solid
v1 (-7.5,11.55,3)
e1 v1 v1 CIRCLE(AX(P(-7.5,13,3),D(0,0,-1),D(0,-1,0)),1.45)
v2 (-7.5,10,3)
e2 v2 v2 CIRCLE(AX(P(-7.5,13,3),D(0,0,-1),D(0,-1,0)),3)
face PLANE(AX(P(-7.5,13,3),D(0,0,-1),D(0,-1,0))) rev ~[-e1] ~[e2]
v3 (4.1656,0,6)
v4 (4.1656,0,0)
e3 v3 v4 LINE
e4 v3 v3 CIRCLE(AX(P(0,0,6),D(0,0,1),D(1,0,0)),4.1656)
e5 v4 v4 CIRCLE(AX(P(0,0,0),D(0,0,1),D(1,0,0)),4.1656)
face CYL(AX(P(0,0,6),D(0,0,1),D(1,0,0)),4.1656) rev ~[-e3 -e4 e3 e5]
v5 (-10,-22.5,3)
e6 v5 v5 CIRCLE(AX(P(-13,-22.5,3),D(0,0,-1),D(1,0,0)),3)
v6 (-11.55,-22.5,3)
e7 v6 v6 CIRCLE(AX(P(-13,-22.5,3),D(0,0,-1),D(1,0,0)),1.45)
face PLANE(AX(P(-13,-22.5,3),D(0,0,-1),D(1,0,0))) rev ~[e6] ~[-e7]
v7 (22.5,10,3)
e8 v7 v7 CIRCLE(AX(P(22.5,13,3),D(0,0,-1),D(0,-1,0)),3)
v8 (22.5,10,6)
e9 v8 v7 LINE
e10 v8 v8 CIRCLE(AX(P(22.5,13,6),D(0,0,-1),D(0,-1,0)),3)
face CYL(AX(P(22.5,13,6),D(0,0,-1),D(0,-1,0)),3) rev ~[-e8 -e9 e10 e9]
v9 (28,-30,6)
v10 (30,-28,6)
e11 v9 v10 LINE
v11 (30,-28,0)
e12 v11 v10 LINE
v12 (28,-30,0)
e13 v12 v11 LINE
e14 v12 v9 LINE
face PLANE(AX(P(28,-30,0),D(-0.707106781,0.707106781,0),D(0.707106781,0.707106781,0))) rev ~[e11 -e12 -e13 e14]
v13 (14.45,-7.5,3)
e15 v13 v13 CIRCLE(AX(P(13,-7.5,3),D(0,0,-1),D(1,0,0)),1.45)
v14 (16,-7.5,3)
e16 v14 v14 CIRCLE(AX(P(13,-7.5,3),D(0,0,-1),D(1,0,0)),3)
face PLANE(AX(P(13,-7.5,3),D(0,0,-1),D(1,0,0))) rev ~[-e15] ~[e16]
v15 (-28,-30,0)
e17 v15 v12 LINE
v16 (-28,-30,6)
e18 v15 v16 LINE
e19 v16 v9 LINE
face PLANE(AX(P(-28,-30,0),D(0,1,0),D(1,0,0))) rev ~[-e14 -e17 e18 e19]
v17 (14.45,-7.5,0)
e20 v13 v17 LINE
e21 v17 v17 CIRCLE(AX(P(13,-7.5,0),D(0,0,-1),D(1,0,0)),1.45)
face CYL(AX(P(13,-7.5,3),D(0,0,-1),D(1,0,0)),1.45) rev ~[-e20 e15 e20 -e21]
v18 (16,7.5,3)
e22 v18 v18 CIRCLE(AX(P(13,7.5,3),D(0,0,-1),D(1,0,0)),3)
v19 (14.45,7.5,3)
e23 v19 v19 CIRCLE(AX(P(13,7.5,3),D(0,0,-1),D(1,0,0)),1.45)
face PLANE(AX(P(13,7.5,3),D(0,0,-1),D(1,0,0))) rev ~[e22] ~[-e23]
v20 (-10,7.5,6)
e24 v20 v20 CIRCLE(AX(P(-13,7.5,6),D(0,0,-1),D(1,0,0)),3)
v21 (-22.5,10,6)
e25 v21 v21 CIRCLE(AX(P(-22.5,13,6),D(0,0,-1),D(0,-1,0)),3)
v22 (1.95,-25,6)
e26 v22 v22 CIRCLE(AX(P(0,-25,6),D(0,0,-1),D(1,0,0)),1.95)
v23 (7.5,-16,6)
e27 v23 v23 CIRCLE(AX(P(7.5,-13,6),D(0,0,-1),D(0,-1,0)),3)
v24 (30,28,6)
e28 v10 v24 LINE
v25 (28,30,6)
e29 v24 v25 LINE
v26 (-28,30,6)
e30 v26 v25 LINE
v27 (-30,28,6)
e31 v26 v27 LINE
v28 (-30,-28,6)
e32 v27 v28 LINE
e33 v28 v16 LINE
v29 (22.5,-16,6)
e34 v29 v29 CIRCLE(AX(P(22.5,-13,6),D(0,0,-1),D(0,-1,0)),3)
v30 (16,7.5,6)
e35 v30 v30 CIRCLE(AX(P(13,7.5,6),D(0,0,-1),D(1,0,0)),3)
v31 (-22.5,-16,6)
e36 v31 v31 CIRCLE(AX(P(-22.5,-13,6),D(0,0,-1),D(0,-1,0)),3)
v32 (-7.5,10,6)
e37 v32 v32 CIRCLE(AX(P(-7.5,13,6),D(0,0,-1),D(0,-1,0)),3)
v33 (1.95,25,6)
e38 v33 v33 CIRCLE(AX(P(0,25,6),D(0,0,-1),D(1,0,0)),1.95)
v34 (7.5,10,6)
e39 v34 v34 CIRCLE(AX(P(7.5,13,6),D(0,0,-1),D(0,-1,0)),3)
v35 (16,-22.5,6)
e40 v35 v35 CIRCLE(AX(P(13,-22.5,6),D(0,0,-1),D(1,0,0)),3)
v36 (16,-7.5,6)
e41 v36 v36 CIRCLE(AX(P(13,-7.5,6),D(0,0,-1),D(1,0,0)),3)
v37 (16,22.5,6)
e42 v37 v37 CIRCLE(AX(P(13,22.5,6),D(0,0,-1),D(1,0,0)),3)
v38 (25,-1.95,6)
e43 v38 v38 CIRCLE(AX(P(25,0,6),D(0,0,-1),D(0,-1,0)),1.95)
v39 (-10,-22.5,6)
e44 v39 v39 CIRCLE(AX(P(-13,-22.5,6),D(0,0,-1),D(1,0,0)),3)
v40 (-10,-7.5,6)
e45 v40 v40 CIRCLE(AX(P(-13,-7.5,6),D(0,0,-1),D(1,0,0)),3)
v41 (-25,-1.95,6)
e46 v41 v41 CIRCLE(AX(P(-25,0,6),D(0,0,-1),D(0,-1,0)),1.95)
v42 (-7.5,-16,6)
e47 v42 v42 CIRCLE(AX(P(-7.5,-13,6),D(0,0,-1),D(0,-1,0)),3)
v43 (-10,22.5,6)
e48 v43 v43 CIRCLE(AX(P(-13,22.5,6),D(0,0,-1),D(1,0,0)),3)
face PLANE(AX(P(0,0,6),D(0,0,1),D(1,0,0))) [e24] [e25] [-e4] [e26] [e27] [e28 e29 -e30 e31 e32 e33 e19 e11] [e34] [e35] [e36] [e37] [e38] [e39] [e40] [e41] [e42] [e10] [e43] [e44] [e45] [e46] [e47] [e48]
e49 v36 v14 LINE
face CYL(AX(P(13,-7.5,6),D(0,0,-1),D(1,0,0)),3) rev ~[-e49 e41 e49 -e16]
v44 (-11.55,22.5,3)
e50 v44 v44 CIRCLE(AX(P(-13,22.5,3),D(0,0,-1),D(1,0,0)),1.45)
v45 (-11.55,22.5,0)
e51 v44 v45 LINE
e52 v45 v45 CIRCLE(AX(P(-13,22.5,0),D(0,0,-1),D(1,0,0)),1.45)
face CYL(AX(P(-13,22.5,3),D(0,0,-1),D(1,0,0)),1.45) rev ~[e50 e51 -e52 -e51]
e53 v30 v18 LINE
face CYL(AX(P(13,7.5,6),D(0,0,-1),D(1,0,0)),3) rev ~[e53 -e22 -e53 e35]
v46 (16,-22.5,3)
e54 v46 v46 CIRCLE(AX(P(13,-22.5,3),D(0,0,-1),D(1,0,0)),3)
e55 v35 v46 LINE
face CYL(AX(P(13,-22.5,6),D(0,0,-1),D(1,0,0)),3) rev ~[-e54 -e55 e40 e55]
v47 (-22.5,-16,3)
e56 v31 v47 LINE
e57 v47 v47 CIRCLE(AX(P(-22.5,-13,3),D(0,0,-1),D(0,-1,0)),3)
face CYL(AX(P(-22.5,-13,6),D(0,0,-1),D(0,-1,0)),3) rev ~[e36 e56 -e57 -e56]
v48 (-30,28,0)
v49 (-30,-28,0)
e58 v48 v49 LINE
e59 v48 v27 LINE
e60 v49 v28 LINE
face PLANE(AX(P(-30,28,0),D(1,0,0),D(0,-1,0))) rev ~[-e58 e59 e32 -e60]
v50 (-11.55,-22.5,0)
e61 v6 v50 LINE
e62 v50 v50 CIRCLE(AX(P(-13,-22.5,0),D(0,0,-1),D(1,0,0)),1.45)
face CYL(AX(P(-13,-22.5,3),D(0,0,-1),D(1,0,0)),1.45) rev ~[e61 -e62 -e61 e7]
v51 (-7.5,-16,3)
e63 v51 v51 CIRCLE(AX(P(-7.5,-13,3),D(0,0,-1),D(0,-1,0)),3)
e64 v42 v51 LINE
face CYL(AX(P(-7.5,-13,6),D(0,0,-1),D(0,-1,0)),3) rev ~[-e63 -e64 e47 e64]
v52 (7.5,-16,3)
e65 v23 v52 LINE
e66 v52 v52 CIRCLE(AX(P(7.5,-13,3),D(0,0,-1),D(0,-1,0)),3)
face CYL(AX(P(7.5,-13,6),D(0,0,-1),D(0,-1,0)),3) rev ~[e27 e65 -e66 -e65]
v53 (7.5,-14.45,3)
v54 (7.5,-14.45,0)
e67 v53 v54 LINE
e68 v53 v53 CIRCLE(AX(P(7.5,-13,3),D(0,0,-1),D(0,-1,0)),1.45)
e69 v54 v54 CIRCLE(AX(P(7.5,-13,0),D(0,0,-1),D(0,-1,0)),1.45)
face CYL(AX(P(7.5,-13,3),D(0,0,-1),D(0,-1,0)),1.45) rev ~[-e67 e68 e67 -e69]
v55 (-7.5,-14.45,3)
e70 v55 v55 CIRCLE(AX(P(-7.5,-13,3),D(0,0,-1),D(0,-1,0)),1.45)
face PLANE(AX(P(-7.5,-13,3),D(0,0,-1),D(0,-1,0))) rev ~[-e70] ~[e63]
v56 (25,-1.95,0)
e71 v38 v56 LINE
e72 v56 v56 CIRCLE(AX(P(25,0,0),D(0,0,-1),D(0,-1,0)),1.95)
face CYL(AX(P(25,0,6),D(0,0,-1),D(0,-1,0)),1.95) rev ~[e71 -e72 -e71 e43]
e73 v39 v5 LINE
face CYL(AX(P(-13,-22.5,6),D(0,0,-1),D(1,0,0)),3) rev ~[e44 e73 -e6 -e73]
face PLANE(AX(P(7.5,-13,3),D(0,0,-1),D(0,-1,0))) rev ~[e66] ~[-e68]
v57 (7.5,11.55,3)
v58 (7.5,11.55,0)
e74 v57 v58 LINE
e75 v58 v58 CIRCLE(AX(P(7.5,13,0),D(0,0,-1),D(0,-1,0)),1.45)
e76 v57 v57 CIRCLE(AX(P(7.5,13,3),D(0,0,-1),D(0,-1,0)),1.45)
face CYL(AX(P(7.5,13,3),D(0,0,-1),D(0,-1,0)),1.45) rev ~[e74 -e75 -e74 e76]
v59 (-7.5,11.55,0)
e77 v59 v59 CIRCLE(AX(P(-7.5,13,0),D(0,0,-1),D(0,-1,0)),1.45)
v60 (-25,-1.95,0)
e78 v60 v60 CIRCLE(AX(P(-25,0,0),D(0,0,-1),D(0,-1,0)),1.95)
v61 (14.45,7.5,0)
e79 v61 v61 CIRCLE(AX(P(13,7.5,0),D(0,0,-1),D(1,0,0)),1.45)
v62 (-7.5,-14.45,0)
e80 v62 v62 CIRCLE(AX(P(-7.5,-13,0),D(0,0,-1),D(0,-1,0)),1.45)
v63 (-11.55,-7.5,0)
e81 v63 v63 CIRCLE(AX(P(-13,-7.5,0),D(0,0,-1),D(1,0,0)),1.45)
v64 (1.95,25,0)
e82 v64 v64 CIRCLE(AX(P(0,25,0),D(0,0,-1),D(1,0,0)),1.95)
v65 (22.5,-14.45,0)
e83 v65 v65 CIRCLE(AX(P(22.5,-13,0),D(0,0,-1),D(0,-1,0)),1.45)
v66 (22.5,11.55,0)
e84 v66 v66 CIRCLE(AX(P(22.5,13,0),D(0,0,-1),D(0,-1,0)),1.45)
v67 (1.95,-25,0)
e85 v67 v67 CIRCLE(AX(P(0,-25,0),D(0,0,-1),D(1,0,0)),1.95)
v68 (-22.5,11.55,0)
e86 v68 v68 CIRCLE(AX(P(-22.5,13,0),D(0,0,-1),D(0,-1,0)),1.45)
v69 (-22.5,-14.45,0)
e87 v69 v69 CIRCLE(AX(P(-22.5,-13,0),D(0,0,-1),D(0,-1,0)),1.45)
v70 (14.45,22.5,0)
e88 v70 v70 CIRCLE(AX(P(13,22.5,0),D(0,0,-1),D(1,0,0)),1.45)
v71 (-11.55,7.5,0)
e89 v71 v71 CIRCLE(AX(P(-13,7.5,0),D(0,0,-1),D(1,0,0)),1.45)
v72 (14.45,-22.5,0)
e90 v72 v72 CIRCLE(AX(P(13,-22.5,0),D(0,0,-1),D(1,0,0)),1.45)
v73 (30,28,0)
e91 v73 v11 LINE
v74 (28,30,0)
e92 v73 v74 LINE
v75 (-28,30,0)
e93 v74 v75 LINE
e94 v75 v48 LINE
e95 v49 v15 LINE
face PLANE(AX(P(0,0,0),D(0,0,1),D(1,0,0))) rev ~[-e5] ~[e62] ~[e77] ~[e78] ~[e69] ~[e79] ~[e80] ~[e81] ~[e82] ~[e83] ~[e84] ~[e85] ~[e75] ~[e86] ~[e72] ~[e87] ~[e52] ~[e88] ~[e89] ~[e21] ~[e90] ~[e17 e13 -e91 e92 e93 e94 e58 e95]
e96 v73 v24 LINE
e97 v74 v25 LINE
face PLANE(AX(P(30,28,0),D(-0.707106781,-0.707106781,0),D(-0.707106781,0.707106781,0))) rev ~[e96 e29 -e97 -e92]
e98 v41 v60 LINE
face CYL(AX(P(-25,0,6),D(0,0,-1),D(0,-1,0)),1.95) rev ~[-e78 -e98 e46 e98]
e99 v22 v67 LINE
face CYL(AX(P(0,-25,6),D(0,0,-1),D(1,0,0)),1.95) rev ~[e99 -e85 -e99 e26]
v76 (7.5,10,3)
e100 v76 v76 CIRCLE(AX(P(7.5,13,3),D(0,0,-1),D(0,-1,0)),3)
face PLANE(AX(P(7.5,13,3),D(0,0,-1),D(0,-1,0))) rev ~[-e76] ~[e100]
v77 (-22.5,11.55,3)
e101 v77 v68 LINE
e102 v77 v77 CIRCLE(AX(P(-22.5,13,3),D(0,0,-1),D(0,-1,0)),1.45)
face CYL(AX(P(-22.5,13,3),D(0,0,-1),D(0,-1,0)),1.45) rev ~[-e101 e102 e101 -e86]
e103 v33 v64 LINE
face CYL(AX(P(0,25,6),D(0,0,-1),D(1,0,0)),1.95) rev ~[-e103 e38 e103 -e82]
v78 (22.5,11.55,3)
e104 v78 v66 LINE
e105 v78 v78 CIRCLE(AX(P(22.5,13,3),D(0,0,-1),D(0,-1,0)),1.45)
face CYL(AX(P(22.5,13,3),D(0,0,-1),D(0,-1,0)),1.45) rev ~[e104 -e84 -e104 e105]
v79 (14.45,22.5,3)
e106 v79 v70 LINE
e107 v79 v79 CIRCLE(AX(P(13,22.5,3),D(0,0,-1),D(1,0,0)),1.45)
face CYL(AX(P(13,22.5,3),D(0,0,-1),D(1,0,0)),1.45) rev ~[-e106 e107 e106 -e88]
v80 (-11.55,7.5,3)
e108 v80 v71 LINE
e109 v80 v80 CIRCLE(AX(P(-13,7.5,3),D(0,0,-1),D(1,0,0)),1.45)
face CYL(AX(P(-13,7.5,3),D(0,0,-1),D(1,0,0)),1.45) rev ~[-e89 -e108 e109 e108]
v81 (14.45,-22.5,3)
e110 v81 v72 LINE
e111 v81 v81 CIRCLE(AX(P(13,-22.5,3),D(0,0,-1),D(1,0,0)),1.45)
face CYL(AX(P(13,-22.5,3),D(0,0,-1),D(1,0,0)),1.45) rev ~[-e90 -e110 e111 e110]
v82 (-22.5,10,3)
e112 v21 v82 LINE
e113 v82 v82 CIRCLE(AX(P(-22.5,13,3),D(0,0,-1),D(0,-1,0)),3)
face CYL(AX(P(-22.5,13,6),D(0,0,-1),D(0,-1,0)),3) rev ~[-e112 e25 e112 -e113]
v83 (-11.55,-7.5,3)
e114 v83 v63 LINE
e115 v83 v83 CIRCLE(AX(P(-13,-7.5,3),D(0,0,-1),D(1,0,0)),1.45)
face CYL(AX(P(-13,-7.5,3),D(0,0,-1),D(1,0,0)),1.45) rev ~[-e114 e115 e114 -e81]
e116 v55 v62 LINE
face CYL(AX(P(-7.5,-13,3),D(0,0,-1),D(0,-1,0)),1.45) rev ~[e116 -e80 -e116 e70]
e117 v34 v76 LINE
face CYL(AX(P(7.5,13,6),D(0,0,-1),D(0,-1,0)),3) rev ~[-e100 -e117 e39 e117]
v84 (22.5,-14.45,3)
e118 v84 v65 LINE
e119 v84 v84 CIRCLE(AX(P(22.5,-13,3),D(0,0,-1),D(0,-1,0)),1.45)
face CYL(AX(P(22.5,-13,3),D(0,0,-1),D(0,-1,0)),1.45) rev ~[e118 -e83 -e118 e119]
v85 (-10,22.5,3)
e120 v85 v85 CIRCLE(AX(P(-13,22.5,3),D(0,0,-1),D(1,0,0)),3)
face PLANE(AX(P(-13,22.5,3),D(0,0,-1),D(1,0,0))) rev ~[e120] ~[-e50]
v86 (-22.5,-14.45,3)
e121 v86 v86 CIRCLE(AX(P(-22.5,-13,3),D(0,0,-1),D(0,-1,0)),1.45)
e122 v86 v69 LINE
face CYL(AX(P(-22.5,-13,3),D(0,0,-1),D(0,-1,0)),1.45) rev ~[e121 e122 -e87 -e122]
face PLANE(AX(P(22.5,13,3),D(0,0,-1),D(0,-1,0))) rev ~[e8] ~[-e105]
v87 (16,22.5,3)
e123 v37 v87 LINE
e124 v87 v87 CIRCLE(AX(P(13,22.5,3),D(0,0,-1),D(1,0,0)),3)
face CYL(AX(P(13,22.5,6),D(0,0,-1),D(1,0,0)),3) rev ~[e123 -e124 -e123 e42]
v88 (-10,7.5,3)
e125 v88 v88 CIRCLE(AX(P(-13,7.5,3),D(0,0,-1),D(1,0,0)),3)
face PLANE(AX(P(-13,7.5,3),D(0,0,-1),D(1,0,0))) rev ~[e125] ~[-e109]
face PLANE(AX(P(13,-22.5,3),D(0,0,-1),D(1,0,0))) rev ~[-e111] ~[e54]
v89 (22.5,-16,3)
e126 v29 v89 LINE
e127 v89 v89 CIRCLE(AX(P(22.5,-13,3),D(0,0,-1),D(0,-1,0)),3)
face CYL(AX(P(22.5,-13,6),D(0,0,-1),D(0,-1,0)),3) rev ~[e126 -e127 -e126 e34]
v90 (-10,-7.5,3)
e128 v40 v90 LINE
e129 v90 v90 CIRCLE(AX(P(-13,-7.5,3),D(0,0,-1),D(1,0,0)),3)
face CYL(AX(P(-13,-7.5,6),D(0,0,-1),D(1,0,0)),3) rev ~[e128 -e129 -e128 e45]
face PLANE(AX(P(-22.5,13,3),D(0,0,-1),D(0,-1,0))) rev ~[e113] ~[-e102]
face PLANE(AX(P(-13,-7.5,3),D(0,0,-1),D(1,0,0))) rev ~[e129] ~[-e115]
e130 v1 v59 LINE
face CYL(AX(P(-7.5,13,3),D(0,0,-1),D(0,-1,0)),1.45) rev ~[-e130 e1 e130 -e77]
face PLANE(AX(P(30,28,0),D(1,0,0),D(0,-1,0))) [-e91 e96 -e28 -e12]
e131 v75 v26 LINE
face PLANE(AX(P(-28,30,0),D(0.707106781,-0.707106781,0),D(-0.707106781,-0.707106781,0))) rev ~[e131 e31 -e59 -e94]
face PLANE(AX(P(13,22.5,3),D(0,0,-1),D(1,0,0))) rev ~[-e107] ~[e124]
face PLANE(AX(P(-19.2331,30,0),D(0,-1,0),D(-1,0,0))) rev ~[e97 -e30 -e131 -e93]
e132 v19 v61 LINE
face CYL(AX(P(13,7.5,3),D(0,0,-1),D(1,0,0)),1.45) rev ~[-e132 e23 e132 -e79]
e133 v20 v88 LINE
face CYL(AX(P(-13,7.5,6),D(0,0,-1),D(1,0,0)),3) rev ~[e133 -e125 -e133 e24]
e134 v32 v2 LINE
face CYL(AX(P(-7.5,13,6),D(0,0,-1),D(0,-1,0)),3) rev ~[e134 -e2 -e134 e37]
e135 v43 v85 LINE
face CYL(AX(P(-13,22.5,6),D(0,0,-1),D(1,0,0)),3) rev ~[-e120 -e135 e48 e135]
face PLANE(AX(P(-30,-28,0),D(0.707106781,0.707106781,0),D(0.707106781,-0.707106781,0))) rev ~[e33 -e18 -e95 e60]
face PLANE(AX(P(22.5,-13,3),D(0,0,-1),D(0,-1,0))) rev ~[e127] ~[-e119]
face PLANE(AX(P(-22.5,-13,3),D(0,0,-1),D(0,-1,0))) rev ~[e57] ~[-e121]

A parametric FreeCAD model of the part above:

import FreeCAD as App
import Part
import Sketcher

V = App.Vector
Q = App.Units.Quantity

doc = App.newDocument("Part")
body = doc.addObject("PartDesign::Body", "Body")

sketch1 = body.newObject("Sketcher::SketchObject", "Sketch")
sketch1.AttachmentSupport = (doc.getObject("XY_Plane"), [""])
sketch1.MapMode = "FlatFace"
sketch1.addGeometry(Part.LineSegment(V(28, 30, 0), V(-28, 30, 0)), False)
sketch1.addGeometry(Part.LineSegment(V(-28, 30, 0), V(-30, 28, 0)), False)
sketch1.addGeometry(Part.LineSegment(V(-30, 28, 0), V(-30, -28, 0)), False)
sketch1.addGeometry(Part.LineSegment(V(-30, -28, 0), V(-28, -30, 0)), False)
sketch1.addGeometry(Part.LineSegment(V(-28, -30, 0), V(28, -30, 0)), False)
sketch1.addGeometry(Part.LineSegment(V(28, -30, 0), V(30, -28, 0)), False)
sketch1.addGeometry(Part.LineSegment(V(30, -28, 0), V(30, 28, 0)), False)
sketch1.addGeometry(Part.LineSegment(V(30, 28, 0), V(28, 30, 0)), False)
sketch1.addConstraint(Sketcher.Constraint("Coincident", 0, 2, 1, 1))
sketch1.addConstraint(Sketcher.Constraint("Coincident", 1, 2, 2, 1))
sketch1.addConstraint(Sketcher.Constraint("Coincident", 2, 2, 3, 1))
sketch1.addConstraint(Sketcher.Constraint("Coincident", 3, 2, 4, 1))
sketch1.addConstraint(Sketcher.Constraint("Coincident", 4, 2, 5, 1))
sketch1.addConstraint(Sketcher.Constraint("Coincident", 5, 2, 6, 1))
sketch1.addConstraint(Sketcher.Constraint("Coincident", 6, 2, 7, 1))
sketch1.addConstraint(Sketcher.Constraint("Coincident", 7, 2, 0, 1))
sketch1.addConstraint(Sketcher.Constraint("Horizontal", 0))
sketch1.addConstraint(Sketcher.Constraint("Vertical", 2))
sketch1.addConstraint(Sketcher.Constraint("Horizontal", 4))
sketch1.addConstraint(Sketcher.Constraint("Vertical", 6))
sketch1.addConstraint(Sketcher.Constraint("Symmetric", 0, 2, 4, 2, -1, 1))
sketch1.addConstraint(Sketcher.Constraint("Symmetric", 1, 2, 5, 2, -1, 1))
sketch1.addConstraint(Sketcher.Constraint("Perpendicular", 1, 3))
sketch1.addConstraint(Sketcher.Constraint("Perpendicular", 5, 7))
sketch1.addConstraint(Sketcher.Constraint("Horizontal", 2, 2, 5, 2))
sketch1.addConstraint(Sketcher.Constraint("Horizontal", 1, 2, 6, 2))
sketch1.addConstraint(Sketcher.Constraint("Vertical", 0, 2, 3, 2))
sketch1.addConstraint(Sketcher.Constraint("Equal", 4, 2))
sketch1.addConstraint(Sketcher.Constraint("DistanceX", 0, 2, 0, 1, Q("56 mm")))
sketch1.addConstraint(Sketcher.Constraint("DistanceY", -1, 1, 0, 2, Q("30 mm")))
pad1 = body.newObject("PartDesign::Pad", "Pad")
pad1.Profile = sketch1
pad1.Length = 6

sketch2 = body.newObject("Sketcher::SketchObject", "Sketch001")
sketch2.AttachmentSupport = (doc.getObject("XY_Plane"), [""])
sketch2.MapMode = "FlatFace"
sketch2.AttachmentOffset = App.Placement(V(0, 0, 6), App.Rotation())
sketch2.addGeometry(Part.Circle(V(-25, 0, 0), V(0, 0, 1), 1.9), False)
sketch2.addGeometry(Part.Circle(V(25, 0, 0), V(0, 0, 1), 1.9), False)
sketch2.addConstraint(Sketcher.Constraint("Equal", 0, 1))
sketch2.addConstraint(Sketcher.Constraint("Symmetric", 0, 3, 1, 3, -1, 1))
sketch2.addConstraint(Sketcher.Constraint("PointOnObject", 0, 3, -1))
sketch2.addConstraint(Sketcher.Constraint("Diameter", 0, Q("3.9 mm")))
sketch2.addConstraint(Sketcher.Constraint("DistanceX", 0, 3, -1, 1, Q("25 mm")))
doc.recompute()
hole = body.newObject("PartDesign::Hole", "Hole")
hole.Profile = sketch2
hole.ThreadType = "None"
hole.Diameter = 3.9
hole.DepthType = "Dimension"
hole.Depth = 10
hole.DrillPoint = "Angled"
hole.DrillPointAngle = 118

sketch3 = body.newObject("Sketcher::SketchObject", "Sketch002")
sketch3.AttachmentSupport = (doc.getObject("XY_Plane"), [""])
sketch3.MapMode = "FlatFace"
sketch3.AttachmentOffset = App.Placement(V(0, 0, 6), App.Rotation())
sketch3.addGeometry(Part.Circle(V(22.5, 13, 0), V(0, 0, 1), 1.4), False)
sketch3.addGeometry(Part.Circle(V(7.5, 13, 0), V(0, 0, 1), 1.4), False)
sketch3.addGeometry(Part.Circle(V(-7.5, 13, 0), V(0, 0, 1), 1.4), False)
sketch3.addGeometry(Part.Circle(V(-22.5, 13, 0), V(0, 0, 1), 1.4), False)
sketch3.addGeometry(Part.Circle(V(-22.5, -13, 0), V(0, 0, 1), 1.4), False)
sketch3.addGeometry(Part.Circle(V(-7.5, -13, 0), V(0, 0, 1), 1.4), False)
sketch3.addGeometry(Part.Circle(V(7.5, -13, 0), V(0, 0, 1), 1.4), False)
sketch3.addGeometry(Part.Circle(V(22.5, -13, 0), V(0, 0, 1), 1.4), False)
sketch3.addConstraint(Sketcher.Constraint("Equal", 0, 1))
sketch3.addConstraint(Sketcher.Constraint("Equal", 1, 2))
sketch3.addConstraint(Sketcher.Constraint("Equal", 2, 3))
sketch3.addConstraint(Sketcher.Constraint("Equal", 3, 4))
sketch3.addConstraint(Sketcher.Constraint("Equal", 4, 5))
sketch3.addConstraint(Sketcher.Constraint("Equal", 5, 6))
sketch3.addConstraint(Sketcher.Constraint("Equal", 6, 7))
sketch3.addConstraint(Sketcher.Constraint("Symmetric", 0, 3, 4, 3, -1, 1))
sketch3.addConstraint(Sketcher.Constraint("Symmetric", 1, 3, 5, 3, -1, 1))
sketch3.addConstraint(Sketcher.Constraint("Symmetric", 2, 3, 6, 3, -1, 1))
sketch3.addConstraint(Sketcher.Constraint("Symmetric", 3, 3, 7, 3, -1, 1))
sketch3.addConstraint(Sketcher.Constraint("Symmetric", 1, 3, 2, 3, -2))
sketch3.addConstraint(Sketcher.Constraint("Symmetric", 0, 3, 3, 3, -2))
sketch3.addConstraint(Sketcher.Constraint("Horizontal", 0, 3, 1, 3))
sketch3.addConstraint(Sketcher.Constraint("Diameter", 0, Q("2.9 mm")))
sketch3.addConstraint(Sketcher.Constraint("DistanceY", -1, 1, 0, 3, Q("13 mm")))
sketch3.addConstraint(Sketcher.Constraint("DistanceX", 1, 3, 0, 3, Q("15 mm")))
sketch3.addConstraint(Sketcher.Constraint("DistanceX", 2, 3, 1, 3, Q("15 mm")))
doc.recompute()
hole2 = body.newObject("PartDesign::Hole", "Hole001")
hole2.Profile = sketch3
hole2.ThreadType = "None"
hole2.Diameter = 2.9
hole2.DepthType = "Dimension"
hole2.Depth = 10
hole2.DrillPoint = "Angled"
hole2.DrillPointAngle = 118
hole2.HoleCutType = "Counterbore"
hole2.HoleCutDiameter = 6
hole2.HoleCutDepth = 3
doc.recompute()

polarpattern = body.newObject("PartDesign::PolarPattern", "PolarPattern")
polarpattern.Originals = [hole, hole2]
polarpattern.Axis = (doc.getObject("Z_Axis"), [""])
polarpattern.Angle = 90
polarpattern.Occurrences = 2
body.Tip = polarpattern

sketch4 = body.newObject("Sketcher::SketchObject", "Sketch003")
sketch4.AttachmentSupport = (doc.getObject("XY_Plane"), [""])
sketch4.MapMode = "FlatFace"
sketch4.AttachmentOffset = App.Placement(V(0, 0, 6), App.Rotation())
sketch4.addGeometry(Part.Circle(V(0, 0, 0), V(0, 0, 1), 4.2), False)
sketch4.addConstraint(Sketcher.Constraint("Coincident", 0, 3, -1, 1))
sketch4.addConstraint(Sketcher.Constraint("Diameter", 0, Q("8.3312 mm")))
pocket1 = body.newObject("PartDesign::Pocket", "Pocket")
pocket1.Profile = sketch4
pocket1.Length = 10

doc.recompute()
